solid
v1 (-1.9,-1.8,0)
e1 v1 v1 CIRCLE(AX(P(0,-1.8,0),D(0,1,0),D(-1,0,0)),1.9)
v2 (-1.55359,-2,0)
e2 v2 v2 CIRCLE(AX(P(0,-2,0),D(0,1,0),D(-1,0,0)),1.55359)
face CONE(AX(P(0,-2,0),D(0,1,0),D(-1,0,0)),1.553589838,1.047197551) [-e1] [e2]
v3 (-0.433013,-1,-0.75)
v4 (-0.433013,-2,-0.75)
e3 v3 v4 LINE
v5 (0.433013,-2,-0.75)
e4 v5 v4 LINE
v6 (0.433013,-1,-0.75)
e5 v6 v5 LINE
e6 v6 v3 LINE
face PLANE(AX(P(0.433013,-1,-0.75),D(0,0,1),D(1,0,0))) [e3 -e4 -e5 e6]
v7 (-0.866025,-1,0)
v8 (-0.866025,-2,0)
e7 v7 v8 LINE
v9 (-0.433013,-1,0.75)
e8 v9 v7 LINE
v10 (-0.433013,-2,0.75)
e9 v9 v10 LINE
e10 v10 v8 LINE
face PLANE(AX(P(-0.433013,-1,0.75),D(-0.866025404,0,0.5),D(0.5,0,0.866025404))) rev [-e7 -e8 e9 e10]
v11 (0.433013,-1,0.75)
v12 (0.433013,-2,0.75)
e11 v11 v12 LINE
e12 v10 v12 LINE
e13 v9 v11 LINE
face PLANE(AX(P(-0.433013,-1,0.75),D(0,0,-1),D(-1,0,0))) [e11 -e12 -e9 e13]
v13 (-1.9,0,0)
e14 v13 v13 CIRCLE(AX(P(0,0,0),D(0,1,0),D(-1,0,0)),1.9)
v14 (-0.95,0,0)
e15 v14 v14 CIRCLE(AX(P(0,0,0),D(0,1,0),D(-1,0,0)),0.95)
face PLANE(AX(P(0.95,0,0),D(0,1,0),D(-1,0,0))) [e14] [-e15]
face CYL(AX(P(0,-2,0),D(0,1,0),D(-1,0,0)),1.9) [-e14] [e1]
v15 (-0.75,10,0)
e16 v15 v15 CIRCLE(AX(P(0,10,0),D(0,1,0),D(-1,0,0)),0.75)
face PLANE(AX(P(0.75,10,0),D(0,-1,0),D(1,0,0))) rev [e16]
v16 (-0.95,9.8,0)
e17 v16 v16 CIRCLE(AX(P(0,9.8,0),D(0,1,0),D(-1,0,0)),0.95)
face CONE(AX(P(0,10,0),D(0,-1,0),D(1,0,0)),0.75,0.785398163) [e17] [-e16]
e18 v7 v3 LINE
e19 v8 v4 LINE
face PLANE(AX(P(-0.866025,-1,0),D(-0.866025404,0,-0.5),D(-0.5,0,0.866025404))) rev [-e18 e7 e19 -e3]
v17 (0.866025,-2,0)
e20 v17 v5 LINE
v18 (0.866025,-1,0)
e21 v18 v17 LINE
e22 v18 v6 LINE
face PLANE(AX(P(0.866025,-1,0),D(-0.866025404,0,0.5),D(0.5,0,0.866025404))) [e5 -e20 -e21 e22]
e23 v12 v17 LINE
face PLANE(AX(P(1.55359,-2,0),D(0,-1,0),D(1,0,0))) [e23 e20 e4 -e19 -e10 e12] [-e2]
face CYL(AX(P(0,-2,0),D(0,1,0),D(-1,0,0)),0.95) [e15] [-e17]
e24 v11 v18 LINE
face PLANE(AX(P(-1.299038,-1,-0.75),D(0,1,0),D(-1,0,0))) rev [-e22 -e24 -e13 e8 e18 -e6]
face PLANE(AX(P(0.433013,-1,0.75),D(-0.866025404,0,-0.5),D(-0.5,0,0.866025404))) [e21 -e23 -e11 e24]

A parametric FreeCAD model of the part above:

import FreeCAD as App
import Part
import Sketcher

V = App.Vector
Q = App.Units.Quantity


def add_polygon(sketch, points):
    """Adds a closed chain of lines whose ends are joined by coincident constraints."""
    first, n = sketch.GeometryCount, len(points)
    for a, b in zip(points, points[1:] + points[:1]):
        sketch.addGeometry(Part.LineSegment(App.Vector(*a, 0), App.Vector(*b, 0)), False)
    for i in range(n):
        sketch.addConstraint(Sketcher.Constraint("Coincident", first + i, 2, first + (i + 1) % n, 1))

doc = App.newDocument("Part")
body = doc.addObject("PartDesign::Body", "Body")

sketch1 = doc.addObject("Sketcher::SketchObject", "Sketch")
body.addObject(sketch1)
sketch1.AttachmentSupport = (doc.XY_Plane, [""])
sketch1.MapMode = "FlatFace"
add_polygon(sketch1, [(1.9, 0), (0.95, 0), (0.95, 9.8), (0.75, 10), (0, 10), (0, -2), (1.55, -2), (1.9, -1.8)])
sketch1.addConstraint([
    Sketcher.Constraint("Horizontal", 0),
    Sketcher.Constraint("Vertical", 1),
    Sketcher.Constraint("Horizontal", 3),
    Sketcher.Constraint("Vertical", 4),
    Sketcher.Constraint("Horizontal", 5),
    Sketcher.Constraint("Vertical", 7),
    Sketcher.Constraint("PointOnObject", 0, 2, -1),
    Sketcher.Constraint("PointOnObject", 3, 2, -2),
    Sketcher.Constraint("DistanceY", 4, 2, 4, 1, 12.0),
    Sketcher.Constraint("Angle", 2, Q("135 deg")),
    Sketcher.Constraint("Angle", 6, Q("30 deg")),
    Sketcher.Constraint("DistanceY", 1, 1, 1, 2, 9.8),
    Sketcher.Constraint("DistanceY", 7, 1, 7, 2, 1.8),
    Sketcher.Constraint("DistanceY", -1, 1, 2, 2, 10.0),
    Sketcher.Constraint("DistanceX", 0, 2, 0, 1, 0.95),
    Sketcher.Constraint("DistanceX", 3, 2, 3, 1, 0.75),
])
revolution = doc.addObject("PartDesign::Revolution", "Revolution")
body.addObject(revolution)
revolution.Profile = sketch1
revolution.ReferenceAxis = (sketch1, ["V_Axis"])
revolution.Angle = 360

sketch2 = doc.addObject("Sketcher::SketchObject", "Sketch001")
body.addObject(sketch2)
sketch2.AttachmentSupport = (doc.XZ_Plane, [""])
sketch2.MapMode = "FlatFace"
sketch2.AttachmentOffset = App.Placement(V(0, 0, 2), App.Rotation())
add_polygon(sketch2, [(0.4, 0.8), (-0.4, 0.8), (-0.9, 0), (-0.4, -0.8), (0.4, -0.8), (0.9, 0)])
sketch2.addConstraint([
    Sketcher.Constraint("Horizontal", 0),
    Sketcher.Constraint("Horizontal", 3),
    Sketcher.Constraint("Symmetric", 0, 2, 3, 2, -1, 1),
    Sketcher.Constraint("Symmetric", 1, 2, 4, 2, -1, 1),
    Sketcher.Constraint("PointOnObject", 1, 2, -1),
    Sketcher.Constraint("Parallel", 2, 5),
    Sketcher.Constraint("Vertical", 0, 2, 2, 2),
    Sketcher.Constraint("Angle", 1, Q("-120 deg")),
    Sketcher.Constraint("DistanceY", 2, 2, 0, 2, 1.5),
    Sketcher.Constraint("DistanceX", 0, 2, 0, 1, 0.866025),
])
pocket1 = doc.addObject("PartDesign::Pocket", "Pocket")
body.addObject(pocket1)
pocket1.Profile = sketch2
pocket1.Length = 1

doc.recompute()
